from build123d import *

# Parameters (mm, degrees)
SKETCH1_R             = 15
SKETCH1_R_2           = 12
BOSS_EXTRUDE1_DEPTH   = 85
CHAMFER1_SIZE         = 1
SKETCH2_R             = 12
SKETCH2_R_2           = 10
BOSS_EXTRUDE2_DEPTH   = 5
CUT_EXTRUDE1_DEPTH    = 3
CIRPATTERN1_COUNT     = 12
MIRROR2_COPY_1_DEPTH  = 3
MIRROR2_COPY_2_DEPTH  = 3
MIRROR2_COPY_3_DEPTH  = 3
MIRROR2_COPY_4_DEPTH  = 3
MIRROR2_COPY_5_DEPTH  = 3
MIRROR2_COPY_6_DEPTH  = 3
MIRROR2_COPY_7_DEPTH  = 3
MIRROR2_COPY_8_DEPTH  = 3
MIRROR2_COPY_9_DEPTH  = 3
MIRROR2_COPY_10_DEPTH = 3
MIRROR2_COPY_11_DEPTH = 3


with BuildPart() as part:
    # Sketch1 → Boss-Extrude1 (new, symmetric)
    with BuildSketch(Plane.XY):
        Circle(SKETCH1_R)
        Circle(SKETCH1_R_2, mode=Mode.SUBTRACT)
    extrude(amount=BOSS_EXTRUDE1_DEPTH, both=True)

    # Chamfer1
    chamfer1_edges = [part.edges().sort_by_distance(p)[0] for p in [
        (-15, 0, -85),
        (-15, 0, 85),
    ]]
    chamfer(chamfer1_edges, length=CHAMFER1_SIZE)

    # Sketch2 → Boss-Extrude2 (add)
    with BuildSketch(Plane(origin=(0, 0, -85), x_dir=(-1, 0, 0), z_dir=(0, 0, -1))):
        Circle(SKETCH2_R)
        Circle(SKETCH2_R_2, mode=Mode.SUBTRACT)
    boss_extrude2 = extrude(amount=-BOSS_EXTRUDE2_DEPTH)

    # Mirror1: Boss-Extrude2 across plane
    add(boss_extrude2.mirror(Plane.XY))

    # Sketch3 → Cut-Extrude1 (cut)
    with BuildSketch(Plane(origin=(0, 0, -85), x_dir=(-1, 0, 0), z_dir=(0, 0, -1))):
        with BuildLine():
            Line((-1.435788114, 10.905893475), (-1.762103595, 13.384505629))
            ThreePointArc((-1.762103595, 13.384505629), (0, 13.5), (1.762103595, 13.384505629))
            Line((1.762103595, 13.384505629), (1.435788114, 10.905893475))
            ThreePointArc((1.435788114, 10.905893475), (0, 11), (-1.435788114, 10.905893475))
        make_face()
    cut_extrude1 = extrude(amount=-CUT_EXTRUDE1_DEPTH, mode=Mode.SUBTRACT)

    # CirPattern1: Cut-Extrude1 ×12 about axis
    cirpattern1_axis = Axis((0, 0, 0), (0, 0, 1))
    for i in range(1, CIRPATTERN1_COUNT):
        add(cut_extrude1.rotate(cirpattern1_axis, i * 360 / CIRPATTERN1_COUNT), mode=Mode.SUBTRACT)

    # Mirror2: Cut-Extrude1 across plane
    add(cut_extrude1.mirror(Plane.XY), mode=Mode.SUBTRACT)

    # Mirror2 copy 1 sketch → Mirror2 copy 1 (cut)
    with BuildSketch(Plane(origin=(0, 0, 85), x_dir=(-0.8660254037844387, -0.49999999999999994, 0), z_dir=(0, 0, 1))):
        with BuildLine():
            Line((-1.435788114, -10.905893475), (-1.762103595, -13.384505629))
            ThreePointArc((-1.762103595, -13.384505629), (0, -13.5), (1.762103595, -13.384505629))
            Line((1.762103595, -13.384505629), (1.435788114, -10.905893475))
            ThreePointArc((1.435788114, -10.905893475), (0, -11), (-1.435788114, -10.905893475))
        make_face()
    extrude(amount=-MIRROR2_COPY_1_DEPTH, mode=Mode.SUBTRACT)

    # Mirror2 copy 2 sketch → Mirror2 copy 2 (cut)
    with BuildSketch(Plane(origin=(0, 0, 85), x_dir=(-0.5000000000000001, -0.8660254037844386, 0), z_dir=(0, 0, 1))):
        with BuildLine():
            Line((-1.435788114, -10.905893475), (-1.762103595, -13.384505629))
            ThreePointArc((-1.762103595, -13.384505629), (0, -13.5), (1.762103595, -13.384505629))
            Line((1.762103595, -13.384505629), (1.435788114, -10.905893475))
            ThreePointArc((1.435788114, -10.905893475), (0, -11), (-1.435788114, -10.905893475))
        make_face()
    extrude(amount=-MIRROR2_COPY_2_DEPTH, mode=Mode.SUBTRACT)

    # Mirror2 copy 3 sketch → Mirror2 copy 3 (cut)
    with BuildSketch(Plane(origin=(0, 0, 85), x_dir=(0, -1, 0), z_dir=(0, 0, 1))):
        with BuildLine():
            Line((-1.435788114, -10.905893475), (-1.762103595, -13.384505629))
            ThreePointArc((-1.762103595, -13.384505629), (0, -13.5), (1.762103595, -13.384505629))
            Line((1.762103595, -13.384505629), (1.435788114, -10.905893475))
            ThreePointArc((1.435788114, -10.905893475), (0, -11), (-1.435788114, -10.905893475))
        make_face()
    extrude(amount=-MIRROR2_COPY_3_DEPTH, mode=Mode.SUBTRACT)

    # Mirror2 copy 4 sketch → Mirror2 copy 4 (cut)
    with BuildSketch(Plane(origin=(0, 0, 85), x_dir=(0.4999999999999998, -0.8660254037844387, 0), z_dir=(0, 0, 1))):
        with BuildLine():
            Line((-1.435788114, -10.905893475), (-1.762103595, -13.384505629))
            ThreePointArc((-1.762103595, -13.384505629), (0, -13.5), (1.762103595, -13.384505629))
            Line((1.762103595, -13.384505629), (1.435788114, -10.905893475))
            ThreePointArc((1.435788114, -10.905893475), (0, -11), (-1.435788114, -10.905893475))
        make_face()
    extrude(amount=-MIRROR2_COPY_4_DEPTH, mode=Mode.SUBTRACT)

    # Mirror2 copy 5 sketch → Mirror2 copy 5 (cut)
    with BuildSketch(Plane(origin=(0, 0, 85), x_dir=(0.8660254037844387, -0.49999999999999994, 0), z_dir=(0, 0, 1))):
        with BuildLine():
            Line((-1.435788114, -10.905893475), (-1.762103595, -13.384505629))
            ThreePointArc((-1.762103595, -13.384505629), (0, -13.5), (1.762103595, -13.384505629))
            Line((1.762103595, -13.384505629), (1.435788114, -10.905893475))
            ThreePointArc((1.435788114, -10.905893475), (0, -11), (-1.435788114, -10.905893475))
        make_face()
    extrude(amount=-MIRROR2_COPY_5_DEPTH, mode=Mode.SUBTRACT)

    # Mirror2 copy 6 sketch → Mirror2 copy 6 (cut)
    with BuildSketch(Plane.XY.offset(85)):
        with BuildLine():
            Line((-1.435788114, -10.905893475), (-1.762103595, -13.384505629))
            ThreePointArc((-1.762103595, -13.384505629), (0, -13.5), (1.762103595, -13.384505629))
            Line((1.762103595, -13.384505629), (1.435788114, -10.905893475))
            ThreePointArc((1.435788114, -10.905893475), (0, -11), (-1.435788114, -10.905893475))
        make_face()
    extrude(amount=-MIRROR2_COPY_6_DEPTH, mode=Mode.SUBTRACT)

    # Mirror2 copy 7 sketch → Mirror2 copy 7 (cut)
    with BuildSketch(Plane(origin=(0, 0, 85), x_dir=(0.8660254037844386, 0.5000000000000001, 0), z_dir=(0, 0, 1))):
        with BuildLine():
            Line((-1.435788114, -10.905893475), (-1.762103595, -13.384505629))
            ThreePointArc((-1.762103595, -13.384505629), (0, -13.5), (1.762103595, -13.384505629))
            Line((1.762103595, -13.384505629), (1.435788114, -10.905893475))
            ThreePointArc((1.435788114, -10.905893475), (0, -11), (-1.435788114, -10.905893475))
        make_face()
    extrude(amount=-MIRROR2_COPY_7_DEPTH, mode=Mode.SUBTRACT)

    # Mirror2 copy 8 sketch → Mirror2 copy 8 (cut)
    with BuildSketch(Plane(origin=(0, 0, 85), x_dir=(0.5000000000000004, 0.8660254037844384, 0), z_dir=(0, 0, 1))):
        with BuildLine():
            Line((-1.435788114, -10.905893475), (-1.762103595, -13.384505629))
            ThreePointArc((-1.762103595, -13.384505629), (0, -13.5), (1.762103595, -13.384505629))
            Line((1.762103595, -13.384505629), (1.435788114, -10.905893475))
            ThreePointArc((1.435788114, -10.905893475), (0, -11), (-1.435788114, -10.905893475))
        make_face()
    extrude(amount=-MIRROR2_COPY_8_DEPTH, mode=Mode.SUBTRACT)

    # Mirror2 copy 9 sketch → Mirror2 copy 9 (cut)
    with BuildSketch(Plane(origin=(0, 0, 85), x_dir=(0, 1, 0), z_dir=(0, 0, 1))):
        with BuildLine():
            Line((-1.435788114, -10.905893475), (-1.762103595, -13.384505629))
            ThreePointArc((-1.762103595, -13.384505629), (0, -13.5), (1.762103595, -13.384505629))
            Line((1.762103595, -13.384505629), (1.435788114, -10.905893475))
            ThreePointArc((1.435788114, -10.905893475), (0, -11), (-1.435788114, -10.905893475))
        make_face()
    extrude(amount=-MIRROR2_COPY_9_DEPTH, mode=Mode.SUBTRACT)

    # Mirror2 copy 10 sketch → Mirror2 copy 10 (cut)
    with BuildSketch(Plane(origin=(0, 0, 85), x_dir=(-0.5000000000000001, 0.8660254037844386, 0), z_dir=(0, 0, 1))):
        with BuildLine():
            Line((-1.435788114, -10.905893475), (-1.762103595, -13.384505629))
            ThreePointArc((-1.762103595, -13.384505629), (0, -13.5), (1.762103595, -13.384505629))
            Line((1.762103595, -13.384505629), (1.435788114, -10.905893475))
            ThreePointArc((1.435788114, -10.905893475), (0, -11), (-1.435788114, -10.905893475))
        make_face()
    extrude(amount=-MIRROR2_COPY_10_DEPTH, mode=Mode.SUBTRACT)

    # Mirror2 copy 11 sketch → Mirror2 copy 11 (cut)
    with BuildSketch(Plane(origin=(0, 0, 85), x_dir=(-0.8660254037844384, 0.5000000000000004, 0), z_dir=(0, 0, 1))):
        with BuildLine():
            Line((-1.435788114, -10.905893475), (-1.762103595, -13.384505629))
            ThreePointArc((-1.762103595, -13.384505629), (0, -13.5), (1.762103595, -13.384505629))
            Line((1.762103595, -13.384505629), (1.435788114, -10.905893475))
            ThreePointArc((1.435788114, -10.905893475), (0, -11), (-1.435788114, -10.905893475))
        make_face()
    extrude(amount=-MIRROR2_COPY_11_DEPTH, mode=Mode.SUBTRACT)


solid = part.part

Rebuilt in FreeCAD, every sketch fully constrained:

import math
import FreeCAD as App
import Part
import Sketcher
Q = App.Units.Quantity


def edges_at(feature, points):
    """Names of the edges that pass closest to the given points."""
    edges = feature.Shape.Edges
    near = lambda p: min(range(len(edges)), key=lambda i: edges[i].distToShape(Part.Vertex(*p))[0])
    return sorted({f"Edge{near(p) + 1}" for p in points})

doc = App.newDocument("Part")
body = doc.addObject("PartDesign::Body", "Body")

# Sketch on XY plane
sketch1 = body.newObject("Sketcher::SketchObject", "Sketch")
sketch1.AttachmentSupport = (doc.getObject("XY_Plane"), [""])
sketch1.MapMode = "FlatFace"
sketch1.addGeometry([
    Part.Circle(App.Vector(0, 0, 0), App.Vector(0, 0, 1), 15),
    Part.Circle(App.Vector(0, 0, 0), App.Vector(0, 0, 1), 12),
], False)
sketch1.addConstraint([
    Sketcher.Constraint("Coincident", 0, 3, -1, 1),
    Sketcher.Constraint("Coincident", 1, 3, -1, 1),
    Sketcher.Constraint("Diameter", 0, 30.0),
    Sketcher.Constraint("Diameter", 1, 24.0),
])
pad1 = body.newObject("PartDesign::Pad", "Pad")
pad1.Profile = sketch1
pad1.Length = 170
pad1.Midplane = True
doc.recompute()

chamfer = body.newObject("PartDesign::Chamfer", "Chamfer")
chamfer.Base = (pad1, edges_at(pad1, [(-15, 0, -85), (-15, 0, 85)]))
chamfer.Size = 1

# Sketch on XY plane
sketch2 = body.newObject("Sketcher::SketchObject", "Sketch001")
sketch2.AttachmentSupport = (doc.getObject("XY_Plane"), [""])
sketch2.MapMode = "FlatFace"
sketch2.AttachmentOffset = App.Placement(App.Vector(0, 0, -85), App.Rotation())
sketch2.addGeometry([
    Part.Circle(App.Vector(0, 0, 0), App.Vector(0, 0, 1), 12),
    Part.Circle(App.Vector(0, 0, 0), App.Vector(0, 0, 1), 10),
], False)
sketch2.addConstraint([
    Sketcher.Constraint("Coincident", 0, 3, -1, 1),
    Sketcher.Constraint("Coincident", 1, 3, -1, 1),
    Sketcher.Constraint("Diameter", 0, 24.0),
    Sketcher.Constraint("Diameter", 1, 20.0),
])
pad2 = body.newObject("PartDesign::Pad", "Pad001")
pad2.Profile = sketch2
pad2.Length = 5
doc.recompute()

mirrored = body.newObject("PartDesign::Mirrored", "Mirrored")
mirrored.Originals = [pad2]
mirrored.MirrorPlane = (doc.getObject("XY_Plane"), [""])
body.Tip = mirrored

# Sketch on XY plane
sketch3 = body.newObject("Sketcher::SketchObject", "Sketch002")
sketch3.AttachmentSupport = (doc.getObject("XY_Plane"), [""])
sketch3.MapMode = "FlatFace"
sketch3.AttachmentOffset = App.Placement(App.Vector(0, 0, -85), App.Rotation())
sketch3.addGeometry([
    Part.LineSegment(App.Vector(1.762104, 13.384506, 0), App.Vector(1.435788, 10.905893, 0)),
    Part.ArcOfCircle(Part.Circle(App.Vector(0, 0, 0), App.Vector(0, 0, 1), 11), math.radians(82.5), math.radians(97.5)),
    Part.LineSegment(App.Vector(-1.435788, 10.905893, 0), App.Vector(-1.762104, 13.384506, 0)),
    Part.ArcOfCircle(Part.Circle(App.Vector(0, 0, 0), App.Vector(0, 0, 1), 13.5), math.radians(82.5), math.radians(97.5)),
], False)
sketch3.addConstraint([
    Sketcher.Constraint("Coincident", 0, 2, 1, 1),
    Sketcher.Constraint("Coincident", 1, 2, 2, 1),
    Sketcher.Constraint("Coincident", 2, 2, 3, 2),
    Sketcher.Constraint("Coincident", 3, 1, 0, 1),
    Sketcher.Constraint("Coincident", 1, 3, -1, 1),
    Sketcher.Constraint("Coincident", 3, 3, -1, 1),
    Sketcher.Constraint("Horizontal", 0, 2, 1, 2),
    Sketcher.Constraint("Horizontal", 2, 2, 3, 1),
    Sketcher.Constraint("Radius", 1, 11.0),
    Sketcher.Constraint("Radius", 3, 13.5),
    Sketcher.Constraint("Angle", 0, Q("-97.5 deg")),
    Sketcher.Constraint("DistanceX", -1, 1, 0, 2, 1.435788),
])
pocket1 = body.newObject("PartDesign::Pocket", "Pocket")
pocket1.Profile = sketch3
pocket1.Length = 3
pocket1.Reversed = True
doc.recompute()

polarpattern = body.newObject("PartDesign::PolarPattern", "PolarPattern")
polarpattern.Originals = [pocket1]
polarpattern.Axis = (doc.getObject("Z_Axis"), [""])
polarpattern.Angle = 360
polarpattern.Occurrences = 12
body.Tip = polarpattern
doc.recompute()

mirrored2 = body.newObject("PartDesign::Mirrored", "Mirrored001")
mirrored2.Originals = [pocket1]
mirrored2.MirrorPlane = (doc.getObject("XY_Plane"), [""])
body.Tip = mirrored2

# Sketch on XY plane
sketch4 = body.newObject("Sketcher::SketchObject", "Sketch003")
sketch4.AttachmentSupport = (doc.getObject("XY_Plane"), [""])
sketch4.MapMode = "FlatFace"
sketch4.AttachmentOffset = App.Placement(App.Vector(0, 0, 85), App.Rotation())
sketch4.addGeometry([
    Part.LineSegment(App.Vector(-4.209518, 10.162675, 0), App.Vector(-5.166226, 12.472374, 0)),
    Part.ArcOfCircle(Part.Circle(App.Vector(0, 0, 0), App.Vector(0, 0, 1), 13.5), math.radians(112.5), math.radians(127.5)),
    Part.LineSegment(App.Vector(-8.218279, 10.71027, 0), App.Vector(-6.696376, 8.726887, 0)),
    Part.ArcOfCircle(Part.Circle(App.Vector(0, 0, 0), App.Vector(0, 0, 1), 11), math.radians(112.5), math.radians(127.5)),
], False)
sketch4.addConstraint([
    Sketcher.Constraint("Coincident", 0, 2, 1, 1),
    Sketcher.Constraint("Coincident", 1, 2, 2, 1),
    Sketcher.Constraint("Coincident", 2, 2, 3, 2),
    Sketcher.Constraint("Coincident", 3, 1, 0, 1),
    Sketcher.Constraint("Coincident", 1, 3, -1, 1),
    Sketcher.Constraint("Coincident", 3, 3, -1, 1),
    Sketcher.Constraint("Radius", 3, 11.0),
    Sketcher.Constraint("Radius", 1, 13.5),
    Sketcher.Constraint("Angle", 0, Q("112.5 deg")),
    Sketcher.Constraint("Angle", 2, Q("-52.5 deg")),
    Sketcher.Constraint("DistanceX", 1, 2, -1, 1, 8.218279),
    Sketcher.Constraint("DistanceX", 2, 2, 0, 2, 1.530149),
])
pocket2 = body.newObject("PartDesign::Pocket", "Pocket001")
pocket2.Profile = sketch4
pocket2.Length = 3

# Sketch on XY plane
sketch5 = body.newObject("Sketcher::SketchObject", "Sketch004")
sketch5.AttachmentSupport = (doc.getObject("XY_Plane"), [""])
sketch5.MapMode = "FlatFace"
sketch5.AttachmentOffset = App.Placement(App.Vector(0, 0, 85), App.Rotation())
sketch5.addGeometry([
    Part.LineSegment(App.Vector(-8.726887, 6.696376, 0), App.Vector(-10.71027, 8.218279, 0)),
    Part.ArcOfCircle(Part.Circle(App.Vector(0, 0, 0), App.Vector(0, 0, 1), 13.5), math.radians(142.5), math.radians(157.5)),
    Part.LineSegment(App.Vector(-12.472374, 5.166226, 0), App.Vector(-10.162675, 4.209518, 0)),
    Part.ArcOfCircle(Part.Circle(App.Vector(0, 0, 0), App.Vector(0, 0, 1), 11), math.radians(142.5), math.radians(157.5)),
], False)
sketch5.addConstraint([
    Sketcher.Constraint("Coincident", 0, 2, 1, 1),
    Sketcher.Constraint("Coincident", 1, 2, 2, 1),
    Sketcher.Constraint("Coincident", 2, 2, 3, 2),
    Sketcher.Constraint("Coincident", 3, 1, 0, 1),
    Sketcher.Constraint("Coincident", 1, 3, -1, 1),
    Sketcher.Constraint("Coincident", 3, 3, -1, 1),
    Sketcher.Constraint("Radius", 3, 11.0),
    Sketcher.Constraint("Radius", 1, 13.5),
    Sketcher.Constraint("Angle", 0, Q("142.5 deg")),
    Sketcher.Constraint("Angle", 2, Q("-22.5 deg")),
    Sketcher.Constraint("DistanceX", 0, 2, -1, 1, 10.71027),
    Sketcher.Constraint("DistanceY", 2, 2, 0, 2, 4.008762),
])
pocket3 = body.newObject("PartDesign::Pocket", "Pocket002")
pocket3.Profile = sketch5
pocket3.Length = 3

# Sketch on XY plane
sketch6 = body.newObject("Sketcher::SketchObject", "Sketch005")
sketch6.AttachmentSupport = (doc.getObject("XY_Plane"), [""])
sketch6.MapMode = "FlatFace"
sketch6.AttachmentOffset = App.Placement(App.Vector(0, 0, 85), App.Rotation())
sketch6.addGeometry([
    Part.LineSegment(App.Vector(-10.905893, 1.435788, 0), App.Vector(-13.384506, 1.762104, 0)),
    Part.ArcOfCircle(Part.Circle(App.Vector(0, 0, 0), App.Vector(0, 0, 1), 13.5), math.radians(172.5), math.radians(187.5)),
    Part.LineSegment(App.Vector(-13.384506, -1.762104, 0), App.Vector(-10.905893, -1.435788, 0)),
    Part.ArcOfCircle(Part.Circle(App.Vector(0, 0, 0), App.Vector(0, 0, 1), 11), math.radians(172.5), math.radians(187.5)),
], False)
sketch6.addConstraint([
    Sketcher.Constraint("Coincident", 0, 2, 1, 1),
    Sketcher.Constraint("Coincident", 1, 2, 2, 1),
    Sketcher.Constraint("Coincident", 2, 2, 3, 2),
    Sketcher.Constraint("Coincident", 3, 1, 0, 1),
    Sketcher.Constraint("Coincident", 1, 3, -1, 1),
    Sketcher.Constraint("Coincident", 3, 3, -1, 1),
    Sketcher.Constraint("Vertical", 0, 2, 1, 2),
    Sketcher.Constraint("Vertical", 2, 2, 3, 1),
    Sketcher.Constraint("Radius", 3, 11.0),
    Sketcher.Constraint("Radius", 1, 13.5),
    Sketcher.Constraint("Angle", 0, Q("172.5 deg")),
    Sketcher.Constraint("DistanceY", 2, 2, -1, 1, 1.435788),
])
pocket4 = body.newObject("PartDesign::Pocket", "Pocket003")
pocket4.Profile = sketch6
pocket4.Length = 3

# Sketch on XY plane
sketch7 = body.newObject("Sketcher::SketchObject", "Sketch006")
sketch7.AttachmentSupport = (doc.getObject("XY_Plane"), [""])
sketch7.MapMode = "FlatFace"
sketch7.AttachmentOffset = App.Placement(App.Vector(0, 0, 85), App.Rotation())
sketch7.addGeometry([
    Part.LineSegment(App.Vector(-10.162675, -4.209518, 0), App.Vector(-12.472374, -5.166226, 0)),
    Part.ArcOfCircle(Part.Circle(App.Vector(0, 0, 0), App.Vector(0, 0, 1), 13.5), math.radians(-157.5), math.radians(-142.5)),
    Part.LineSegment(App.Vector(-10.71027, -8.218279, 0), App.Vector(-8.726887, -6.696376, 0)),
    Part.ArcOfCircle(Part.Circle(App.Vector(0, 0, 0), App.Vector(0, 0, 1), 11), math.radians(-157.5), math.radians(-142.5)),
], False)
sketch7.addConstraint([
    Sketcher.Constraint("Coincident", 0, 2, 1, 1),
    Sketcher.Constraint("Coincident", 1, 2, 2, 1),
    Sketcher.Constraint("Coincident", 2, 2, 3, 2),
    Sketcher.Constraint("Coincident", 3, 1, 0, 1),
    Sketcher.Constraint("Coincident", 1, 3, -1, 1),
    Sketcher.Constraint("Coincident", 3, 3, -1, 1),
    Sketcher.Constraint("Radius", 3, 11.0),
    Sketcher.Constraint("Radius", 1, 13.5),
    Sketcher.Constraint("Angle", 0, Q("-157.5 deg")),
    Sketcher.Constraint("Angle", 2, Q("37.5 deg")),
    Sketcher.Constraint("DistanceX", 1, 2, -1, 1, 10.71027),
    Sketcher.Constraint("DistanceY", 2, 2, 0, 2, 1.530149),
])
pocket5 = body.newObject("PartDesign::Pocket", "Pocket004")
pocket5.Profile = sketch7
pocket5.Length = 3

# Sketch on XY plane
sketch8 = body.newObject("Sketcher::SketchObject", "Sketch007")
sketch8.AttachmentSupport = (doc.getObject("XY_Plane"), [""])
sketch8.MapMode = "FlatFace"
sketch8.AttachmentOffset = App.Placement(App.Vector(0, 0, 85), App.Rotation())
sketch8.addGeometry([
    Part.LineSegment(App.Vector(-6.696376, -8.726887, 0), App.Vector(-8.218279, -10.71027, 0)),
    Part.ArcOfCircle(Part.Circle(App.Vector(0, 0, 0), App.Vector(0, 0, 1), 13.5), math.radians(-127.5), math.radians(-112.5)),
    Part.LineSegment(App.Vector(-5.166226, -12.472374, 0), App.Vector(-4.209518, -10.162675, 0)),
    Part.ArcOfCircle(Part.Circle(App.Vector(0, 0, 0), App.Vector(0, 0, 1), 11), math.radians(-127.5), math.radians(-112.5)),
], False)
sketch8.addConstraint([
    Sketcher.Constraint("Coincident", 0, 2, 1, 1),
    Sketcher.Constraint("Coincident", 1, 2, 2, 1),
    Sketcher.Constraint("Coincident", 2, 2, 3, 2),
    Sketcher.Constraint("Coincident", 3, 1, 0, 1),
    Sketcher.Constraint("Coincident", 1, 3, -1, 1),
    Sketcher.Constraint("Coincident", 3, 3, -1, 1),
    Sketcher.Constraint("Radius", 3, 11.0),
    Sketcher.Constraint("Radius", 1, 13.5),
    Sketcher.Constraint("Angle", 0, Q("-127.5 deg")),
    Sketcher.Constraint("Angle", 2, Q("67.5 deg")),
    Sketcher.Constraint("DistanceX", 0, 2, -1, 1, 8.218279),
    Sketcher.Constraint("DistanceX", 0, 2, 2, 2, 4.008762),
])
pocket6 = body.newObject("PartDesign::Pocket", "Pocket005")
pocket6.Profile = sketch8
pocket6.Length = 3

# Sketch on XY plane
sketch9 = body.newObject("Sketcher::SketchObject", "Sketch008")
sketch9.AttachmentSupport = (doc.getObject("XY_Plane"), [""])
sketch9.MapMode = "FlatFace"
sketch9.AttachmentOffset = App.Placement(App.Vector(0, 0, 85), App.Rotation())
sketch9.addGeometry([
    Part.LineSegment(App.Vector(-1.435788, -10.905893, 0), App.Vector(-1.762104, -13.384506, 0)),
    Part.ArcOfCircle(Part.Circle(App.Vector(0, 0, 0), App.Vector(0, 0, 1), 13.5), math.radians(-97.5), math.radians(-82.5)),
    Part.LineSegment(App.Vector(1.762104, -13.384506, 0), App.Vector(1.435788, -10.905893, 0)),
    Part.ArcOfCircle(Part.Circle(App.Vector(0, 0, 0), App.Vector(0, 0, 1), 11), math.radians(-97.5), math.radians(-82.5)),
], False)
sketch9.addConstraint([
    Sketcher.Constraint("Coincident", 0, 2, 1, 1),
    Sketcher.Constraint("Coincident", 1, 2, 2, 1),
    Sketcher.Constraint("Coincident", 2, 2, 3, 2),
    Sketcher.Constraint("Coincident", 3, 1, 0, 1),
    Sketcher.Constraint("Coincident", 1, 3, -1, 1),
    Sketcher.Constraint("Coincident", 3, 3, -1, 1),
    Sketcher.Constraint("Horizontal", 0, 2, 1, 2),
    Sketcher.Constraint("Horizontal", 2, 2, 3, 1),
    Sketcher.Constraint("Radius", 3, 11.0),
    Sketcher.Constraint("Radius", 1, 13.5),
    Sketcher.Constraint("Angle", 0, Q("-97.5 deg")),
    Sketcher.Constraint("DistanceX", -1, 1, 2, 2, 1.435788),
])
pocket7 = body.newObject("PartDesign::Pocket", "Pocket006")
pocket7.Profile = sketch9
pocket7.Length = 3

# Sketch on XY plane
sketch10 = body.newObject("Sketcher::SketchObject", "Sketch009")
sketch10.AttachmentSupport = (doc.getObject("XY_Plane"), [""])
sketch10.MapMode = "FlatFace"
sketch10.AttachmentOffset = App.Placement(App.Vector(0, 0, 85), App.Rotation())
sketch10.addGeometry([
    Part.LineSegment(App.Vector(4.209518, -10.162675, 0), App.Vector(5.166226, -12.472374, 0)),
    Part.ArcOfCircle(Part.Circle(App.Vector(0, 0, 0), App.Vector(0, 0, 1), 13.5), math.radians(-67.5), math.radians(-52.5)),
    Part.LineSegment(App.Vector(8.218279, -10.71027, 0), App.Vector(6.696376, -8.726887, 0)),
    Part.ArcOfCircle(Part.Circle(App.Vector(0, 0, 0), App.Vector(0, 0, 1), 11), math.radians(-67.5), math.radians(-52.5)),
], False)
sketch10.addConstraint([
    Sketcher.Constraint("Coincident", 0, 2, 1, 1),
    Sketcher.Constraint("Coincident", 1, 2, 2, 1),
    Sketcher.Constraint("Coincident", 2, 2, 3, 2),
    Sketcher.Constraint("Coincident", 3, 1, 0, 1),
    Sketcher.Constraint("Coincident", 1, 3, -1, 1),
    Sketcher.Constraint("Coincident", 3, 3, -1, 1),
    Sketcher.Constraint("Radius", 3, 11.0),
    Sketcher.Constraint("Radius", 1, 13.5),
    Sketcher.Constraint("Angle", 0, Q("-67.5 deg")),
    Sketcher.Constraint("Angle", 2, Q("127.5 deg")),
    Sketcher.Constraint("DistanceX", -1, 1, 1, 2, 8.218279),
    Sketcher.Constraint("DistanceX", 0, 2, 2, 2, 1.530149),
])
pocket8 = body.newObject("PartDesign::Pocket", "Pocket007")
pocket8.Profile = sketch10
pocket8.Length = 3

# Sketch on XY plane
sketch11 = body.newObject("Sketcher::SketchObject", "Sketch010")
sketch11.AttachmentSupport = (doc.getObject("XY_Plane"), [""])
sketch11.MapMode = "FlatFace"
sketch11.AttachmentOffset = App.Placement(App.Vector(0, 0, 85), App.Rotation())
sketch11.addGeometry([
    Part.LineSegment(App.Vector(8.726887, -6.696376, 0), App.Vector(10.71027, -8.218279, 0)),
    Part.ArcOfCircle(Part.Circle(App.Vector(0, 0, 0), App.Vector(0, 0, 1), 13.5), math.radians(-37.5), math.radians(-22.5)),
    Part.LineSegment(App.Vector(12.472374, -5.166226, 0), App.Vector(10.162675, -4.209518, 0)),
    Part.ArcOfCircle(Part.Circle(App.Vector(0, 0, 0), App.Vector(0, 0, 1), 11), math.radians(-37.5), math.radians(-22.5)),
], False)
sketch11.addConstraint([
    Sketcher.Constraint("Coincident", 0, 2, 1, 1),
    Sketcher.Constraint("Coincident", 1, 2, 2, 1),
    Sketcher.Constraint("Coincident", 2, 2, 3, 2),
    Sketcher.Constraint("Coincident", 3, 1, 0, 1),
    Sketcher.Constraint("Coincident", 1, 3, -1, 1),
    Sketcher.Constraint("Coincident", 3, 3, -1, 1),
    Sketcher.Constraint("Radius", 3, 11.0),
    Sketcher.Constraint("Radius", 1, 13.5),
    Sketcher.Constraint("Angle", 0, Q("-37.5 deg")),
    Sketcher.Constraint("Angle", 2, Q("157.5 deg")),
    Sketcher.Constraint("DistanceX", -1, 1, 0, 2, 10.71027),
    Sketcher.Constraint("DistanceY", 0, 2, 2, 2, 4.008762),
])
pocket9 = body.newObject("PartDesign::Pocket", "Pocket008")
pocket9.Profile = sketch11
pocket9.Length = 3

# Sketch on XY plane
sketch12 = body.newObject("Sketcher::SketchObject", "Sketch011")
sketch12.AttachmentSupport = (doc.getObject("XY_Plane"), [""])
sketch12.MapMode = "FlatFace"
sketch12.AttachmentOffset = App.Placement(App.Vector(0, 0, 85), App.Rotation())
sketch12.addGeometry([
    Part.LineSegment(App.Vector(10.905893, -1.435788, 0), App.Vector(13.384506, -1.762104, 0)),
    Part.ArcOfCircle(Part.Circle(App.Vector(0, 0, 0), App.Vector(0, 0, 1), 13.5), math.radians(-7.5), math.radians(7.5)),
    Part.LineSegment(App.Vector(13.384506, 1.762104, 0), App.Vector(10.905893, 1.435788, 0)),
    Part.ArcOfCircle(Part.Circle(App.Vector(0, 0, 0), App.Vector(0, 0, 1), 11), math.radians(-7.5), math.radians(7.5)),
], False)
sketch12.addConstraint([
    Sketcher.Constraint("Coincident", 0, 2, 1, 1),
    Sketcher.Constraint("Coincident", 1, 2, 2, 1),
    Sketcher.Constraint("Coincident", 2, 2, 3, 2),
    Sketcher.Constraint("Coincident", 3, 1, 0, 1),
    Sketcher.Constraint("Coincident", 1, 3, -1, 1),
    Sketcher.Constraint("Coincident", 3, 3, -1, 1),
    Sketcher.Constraint("Vertical", 0, 2, 1, 2),
    Sketcher.Constraint("Vertical", 2, 2, 3, 1),
    Sketcher.Constraint("Radius", 3, 11.0),
    Sketcher.Constraint("Radius", 1, 13.5),
    Sketcher.Constraint("Angle", 0, Q("-7.5 deg")),
    Sketcher.Constraint("DistanceY", -1, 1, 2, 2, 1.435788),
])
pocket10 = body.newObject("PartDesign::Pocket", "Pocket009")
pocket10.Profile = sketch12
pocket10.Length = 3

# Sketch on XY plane
sketch13 = body.newObject("Sketcher::SketchObject", "Sketch012")
sketch13.AttachmentSupport = (doc.getObject("XY_Plane"), [""])
sketch13.MapMode = "FlatFace"
sketch13.AttachmentOffset = App.Placement(App.Vector(0, 0, 85), App.Rotation())
sketch13.addGeometry([
    Part.LineSegment(App.Vector(10.162675, 4.209518, 0), App.Vector(12.472374, 5.166226, 0)),
    Part.ArcOfCircle(Part.Circle(App.Vector(0, 0, 0), App.Vector(0, 0, 1), 13.5), math.radians(22.5), math.radians(37.5)),
    Part.LineSegment(App.Vector(10.71027, 8.218279, 0), App.Vector(8.726887, 6.696376, 0)),
    Part.ArcOfCircle(Part.Circle(App.Vector(0, 0, 0), App.Vector(0, 0, 1), 11), math.radians(22.5), math.radians(37.5)),
], False)
sketch13.addConstraint([
    Sketcher.Constraint("Coincident", 0, 2, 1, 1),
    Sketcher.Constraint("Coincident", 1, 2, 2, 1),
    Sketcher.Constraint("Coincident", 2, 2, 3, 2),
    Sketcher.Constraint("Coincident", 3, 1, 0, 1),
    Sketcher.Constraint("Coincident", 1, 3, -1, 1),
    Sketcher.Constraint("Coincident", 3, 3, -1, 1),
    Sketcher.Constraint("Radius", 3, 11.0),
    Sketcher.Constraint("Radius", 1, 13.5),
    Sketcher.Constraint("Angle", 0, Q("22.5 deg")),
    Sketcher.Constraint("Angle", 2, Q("-142.5 deg")),
    Sketcher.Constraint("DistanceX", -1, 1, 1, 2, 10.71027),
    Sketcher.Constraint("DistanceY", 0, 2, 2, 2, 1.530149),
])
pocket11 = body.newObject("PartDesign::Pocket", "Pocket010")
pocket11.Profile = sketch13
pocket11.Length = 3

# Sketch on XY plane
sketch14 = body.newObject("Sketcher::SketchObject", "Sketch013")
sketch14.AttachmentSupport = (doc.getObject("XY_Plane"), [""])
sketch14.MapMode = "FlatFace"
sketch14.AttachmentOffset = App.Placement(App.Vector(0, 0, 85), App.Rotation())
sketch14.addGeometry([
    Part.LineSegment(App.Vector(6.696376, 8.726887, 0), App.Vector(8.218279, 10.71027, 0)),
    Part.ArcOfCircle(Part.Circle(App.Vector(0, 0, 0), App.Vector(0, 0, 1), 13.5), math.radians(52.5), math.radians(67.5)),
    Part.LineSegment(App.Vector(5.166226, 12.472374, 0), App.Vector(4.209518, 10.162675, 0)),
    Part.ArcOfCircle(Part.Circle(App.Vector(0, 0, 0), App.Vector(0, 0, 1), 11), math.radians(52.5), math.radians(67.5)),
], False)
sketch14.addConstraint([
    Sketcher.Constraint("Coincident", 0, 2, 1, 1),
    Sketcher.Constraint("Coincident", 1, 2, 2, 1),
    Sketcher.Constraint("Coincident", 2, 2, 3, 2),
    Sketcher.Constraint("Coincident", 3, 1, 0, 1),
    Sketcher.Constraint("Coincident", 1, 3, -1, 1),
    Sketcher.Constraint("Coincident", 3, 3, -1, 1),
    Sketcher.Constraint("Radius", 3, 11.0),
    Sketcher.Constraint("Radius", 1, 13.5),
    Sketcher.Constraint("Angle", 0, Q("52.5 deg")),
    Sketcher.Constraint("Angle", 2, Q("-112.5 deg")),
    Sketcher.Constraint("DistanceX", -1, 1, 0, 2, 8.218279),
    Sketcher.Constraint("DistanceX", 2, 2, 0, 2, 4.008762),
])
pocket12 = body.newObject("PartDesign::Pocket", "Pocket011")
pocket12.Profile = sketch14
pocket12.Length = 3

doc.recompute()
